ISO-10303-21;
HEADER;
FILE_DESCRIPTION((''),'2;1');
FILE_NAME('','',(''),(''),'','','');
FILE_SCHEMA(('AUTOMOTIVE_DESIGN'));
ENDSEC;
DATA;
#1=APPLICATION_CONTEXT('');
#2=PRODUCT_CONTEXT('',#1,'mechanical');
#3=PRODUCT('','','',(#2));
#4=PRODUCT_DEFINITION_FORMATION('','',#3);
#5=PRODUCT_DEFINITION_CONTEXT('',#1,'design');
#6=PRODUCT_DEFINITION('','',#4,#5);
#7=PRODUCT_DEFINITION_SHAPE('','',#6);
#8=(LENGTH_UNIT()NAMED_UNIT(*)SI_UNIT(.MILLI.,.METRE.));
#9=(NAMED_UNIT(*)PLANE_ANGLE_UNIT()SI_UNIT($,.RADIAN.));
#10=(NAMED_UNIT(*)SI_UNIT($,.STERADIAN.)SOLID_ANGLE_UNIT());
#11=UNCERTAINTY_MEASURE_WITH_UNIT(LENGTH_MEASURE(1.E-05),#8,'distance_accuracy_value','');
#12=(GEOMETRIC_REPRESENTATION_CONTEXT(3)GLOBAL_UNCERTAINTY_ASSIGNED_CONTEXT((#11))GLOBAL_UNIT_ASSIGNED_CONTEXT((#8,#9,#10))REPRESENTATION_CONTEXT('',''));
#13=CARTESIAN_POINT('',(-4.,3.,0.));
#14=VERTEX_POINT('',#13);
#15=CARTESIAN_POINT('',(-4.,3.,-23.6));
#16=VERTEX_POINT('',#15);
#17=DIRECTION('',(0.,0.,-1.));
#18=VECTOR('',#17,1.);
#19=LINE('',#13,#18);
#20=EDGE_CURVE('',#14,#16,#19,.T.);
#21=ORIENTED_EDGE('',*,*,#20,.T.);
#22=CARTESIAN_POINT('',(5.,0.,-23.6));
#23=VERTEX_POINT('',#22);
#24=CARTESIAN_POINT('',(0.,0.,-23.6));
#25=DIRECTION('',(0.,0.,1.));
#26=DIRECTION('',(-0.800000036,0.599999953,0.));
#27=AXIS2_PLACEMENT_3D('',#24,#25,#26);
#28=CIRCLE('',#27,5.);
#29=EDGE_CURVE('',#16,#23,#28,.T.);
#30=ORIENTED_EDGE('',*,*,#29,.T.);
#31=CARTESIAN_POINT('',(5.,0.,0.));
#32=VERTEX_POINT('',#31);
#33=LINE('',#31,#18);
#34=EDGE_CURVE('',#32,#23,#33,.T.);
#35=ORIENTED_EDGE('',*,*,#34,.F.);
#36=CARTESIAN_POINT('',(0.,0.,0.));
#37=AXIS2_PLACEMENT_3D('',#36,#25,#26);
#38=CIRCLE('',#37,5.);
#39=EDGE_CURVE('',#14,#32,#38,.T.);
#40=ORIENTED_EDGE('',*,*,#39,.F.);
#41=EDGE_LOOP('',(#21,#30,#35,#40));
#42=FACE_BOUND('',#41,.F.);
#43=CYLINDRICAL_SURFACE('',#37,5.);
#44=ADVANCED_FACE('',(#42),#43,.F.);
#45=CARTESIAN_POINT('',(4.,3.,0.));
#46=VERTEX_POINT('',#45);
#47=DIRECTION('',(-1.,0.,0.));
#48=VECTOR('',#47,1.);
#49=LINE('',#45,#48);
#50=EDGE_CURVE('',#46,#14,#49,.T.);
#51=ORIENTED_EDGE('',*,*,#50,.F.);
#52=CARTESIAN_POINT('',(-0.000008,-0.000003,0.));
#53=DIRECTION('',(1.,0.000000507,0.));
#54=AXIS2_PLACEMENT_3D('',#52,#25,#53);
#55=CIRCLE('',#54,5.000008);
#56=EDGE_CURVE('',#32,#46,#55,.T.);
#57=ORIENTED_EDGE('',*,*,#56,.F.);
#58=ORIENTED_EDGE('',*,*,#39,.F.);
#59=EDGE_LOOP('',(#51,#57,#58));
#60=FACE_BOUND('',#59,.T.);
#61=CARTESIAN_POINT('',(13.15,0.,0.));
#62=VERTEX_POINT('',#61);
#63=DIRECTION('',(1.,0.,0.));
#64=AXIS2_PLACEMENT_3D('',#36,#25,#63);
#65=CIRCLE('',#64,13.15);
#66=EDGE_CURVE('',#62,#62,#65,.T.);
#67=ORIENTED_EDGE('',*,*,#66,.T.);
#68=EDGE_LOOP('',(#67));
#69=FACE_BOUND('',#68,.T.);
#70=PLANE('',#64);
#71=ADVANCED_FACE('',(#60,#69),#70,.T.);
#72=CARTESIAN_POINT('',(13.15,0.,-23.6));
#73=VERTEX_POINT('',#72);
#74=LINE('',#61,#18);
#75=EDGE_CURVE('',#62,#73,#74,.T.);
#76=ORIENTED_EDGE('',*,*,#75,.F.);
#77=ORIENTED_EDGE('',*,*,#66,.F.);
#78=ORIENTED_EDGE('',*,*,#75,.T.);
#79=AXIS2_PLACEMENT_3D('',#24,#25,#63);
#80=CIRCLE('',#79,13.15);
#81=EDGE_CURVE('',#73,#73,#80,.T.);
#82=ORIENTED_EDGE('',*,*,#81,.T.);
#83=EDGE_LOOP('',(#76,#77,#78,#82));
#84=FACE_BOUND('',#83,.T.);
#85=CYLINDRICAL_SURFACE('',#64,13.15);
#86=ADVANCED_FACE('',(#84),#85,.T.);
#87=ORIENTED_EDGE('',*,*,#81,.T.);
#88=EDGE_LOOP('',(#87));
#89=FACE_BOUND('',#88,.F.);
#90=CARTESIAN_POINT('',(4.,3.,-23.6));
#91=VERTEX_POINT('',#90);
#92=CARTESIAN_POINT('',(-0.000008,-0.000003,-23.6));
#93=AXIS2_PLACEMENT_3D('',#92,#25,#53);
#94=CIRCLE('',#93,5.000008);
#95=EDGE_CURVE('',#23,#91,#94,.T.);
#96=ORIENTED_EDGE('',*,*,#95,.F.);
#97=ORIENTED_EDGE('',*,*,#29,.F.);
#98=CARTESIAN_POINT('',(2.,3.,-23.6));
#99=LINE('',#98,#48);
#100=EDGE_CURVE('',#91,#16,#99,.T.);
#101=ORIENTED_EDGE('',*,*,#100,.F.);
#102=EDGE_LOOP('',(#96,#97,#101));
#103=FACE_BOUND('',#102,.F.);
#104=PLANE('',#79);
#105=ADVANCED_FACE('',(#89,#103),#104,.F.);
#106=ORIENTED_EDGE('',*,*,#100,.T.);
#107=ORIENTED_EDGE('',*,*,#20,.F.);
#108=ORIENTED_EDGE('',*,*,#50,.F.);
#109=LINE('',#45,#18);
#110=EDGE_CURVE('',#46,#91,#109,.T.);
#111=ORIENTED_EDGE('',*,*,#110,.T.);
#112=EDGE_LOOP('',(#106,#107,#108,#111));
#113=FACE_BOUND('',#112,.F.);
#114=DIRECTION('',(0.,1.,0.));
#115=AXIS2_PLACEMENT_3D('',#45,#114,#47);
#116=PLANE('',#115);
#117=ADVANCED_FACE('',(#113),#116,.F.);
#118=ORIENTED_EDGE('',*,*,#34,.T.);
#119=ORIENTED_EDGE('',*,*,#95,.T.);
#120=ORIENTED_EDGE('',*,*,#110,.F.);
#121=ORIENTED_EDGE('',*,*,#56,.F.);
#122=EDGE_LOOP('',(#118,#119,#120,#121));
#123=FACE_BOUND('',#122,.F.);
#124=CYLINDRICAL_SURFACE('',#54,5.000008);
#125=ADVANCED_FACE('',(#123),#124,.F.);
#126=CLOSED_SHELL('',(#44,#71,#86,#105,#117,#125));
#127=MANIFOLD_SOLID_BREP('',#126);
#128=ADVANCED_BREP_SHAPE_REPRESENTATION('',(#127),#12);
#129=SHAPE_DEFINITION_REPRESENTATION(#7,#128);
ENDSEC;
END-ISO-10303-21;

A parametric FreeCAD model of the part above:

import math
import FreeCAD as App
import Part
import Sketcher

doc = App.newDocument("Part")
body = doc.addObject("PartDesign::Body", "Body")

# Sketch on XY plane
sketch1 = body.newObject("Sketcher::SketchObject", "Sketch")
sketch1.AttachmentSupport = (doc.getObject("XY_Plane"), [""])
sketch1.MapMode = "FlatFace"
sketch1.addGeometry(Part.Circle(App.Vector(0, 0, 0), App.Vector(0, 0, 1), 13), False)
sketch1.addConstraint([
    Sketcher.Constraint("Coincident", 0, 3, -1, 1),
    Sketcher.Constraint("Diameter", 0, 26.3),
])
pad1 = body.newObject("PartDesign::Pad", "Pad")
pad1.Profile = sketch1
pad1.Length = 23.6
pad1.Reversed = True

# Sketch on XY plane
sketch2 = body.newObject("Sketcher::SketchObject", "Sketch001")
sketch2.AttachmentSupport = (doc.getObject("XY_Plane"), [""])
sketch2.MapMode = "FlatFace"
sketch2.addGeometry([
    Part.ArcOfCircle(Part.Circle(App.Vector(0, 0, 0), App.Vector(0, 0, 1), 5), math.radians(143), math.radians(360)),
    Part.ArcOfCircle(Part.Circle(App.Vector(0, 0, 0), App.Vector(0, 0, 1), 5), math.radians(0), math.radians(37)),
    Part.LineSegment(App.Vector(4, 3, 0), App.Vector(-4, 3, 0)),
], False)
sketch2.addConstraint([
    Sketcher.Constraint("Tangent", 0, 2, 1, 1),
    Sketcher.Constraint("Coincident", 1, 2, 2, 1),
    Sketcher.Constraint("Coincident", 2, 2, 0, 1),
    Sketcher.Constraint("Horizontal", 2),
    Sketcher.Constraint("Coincident", 0, 3, -1, 1),
    Sketcher.Constraint("PointOnObject", 0, 2, -1),
    Sketcher.Constraint("Radius", 0, 5.0),
    Sketcher.Constraint("DistanceX", 2, 2, 2, 1, 8.0),
    Sketcher.Constraint("DistanceX", -1, 1, 1, 2, 4.0),
])
pocket1 = body.newObject("PartDesign::Pocket", "Pocket")
pocket1.Profile = sketch2
pocket1.Length = 25.4

doc.recompute()
